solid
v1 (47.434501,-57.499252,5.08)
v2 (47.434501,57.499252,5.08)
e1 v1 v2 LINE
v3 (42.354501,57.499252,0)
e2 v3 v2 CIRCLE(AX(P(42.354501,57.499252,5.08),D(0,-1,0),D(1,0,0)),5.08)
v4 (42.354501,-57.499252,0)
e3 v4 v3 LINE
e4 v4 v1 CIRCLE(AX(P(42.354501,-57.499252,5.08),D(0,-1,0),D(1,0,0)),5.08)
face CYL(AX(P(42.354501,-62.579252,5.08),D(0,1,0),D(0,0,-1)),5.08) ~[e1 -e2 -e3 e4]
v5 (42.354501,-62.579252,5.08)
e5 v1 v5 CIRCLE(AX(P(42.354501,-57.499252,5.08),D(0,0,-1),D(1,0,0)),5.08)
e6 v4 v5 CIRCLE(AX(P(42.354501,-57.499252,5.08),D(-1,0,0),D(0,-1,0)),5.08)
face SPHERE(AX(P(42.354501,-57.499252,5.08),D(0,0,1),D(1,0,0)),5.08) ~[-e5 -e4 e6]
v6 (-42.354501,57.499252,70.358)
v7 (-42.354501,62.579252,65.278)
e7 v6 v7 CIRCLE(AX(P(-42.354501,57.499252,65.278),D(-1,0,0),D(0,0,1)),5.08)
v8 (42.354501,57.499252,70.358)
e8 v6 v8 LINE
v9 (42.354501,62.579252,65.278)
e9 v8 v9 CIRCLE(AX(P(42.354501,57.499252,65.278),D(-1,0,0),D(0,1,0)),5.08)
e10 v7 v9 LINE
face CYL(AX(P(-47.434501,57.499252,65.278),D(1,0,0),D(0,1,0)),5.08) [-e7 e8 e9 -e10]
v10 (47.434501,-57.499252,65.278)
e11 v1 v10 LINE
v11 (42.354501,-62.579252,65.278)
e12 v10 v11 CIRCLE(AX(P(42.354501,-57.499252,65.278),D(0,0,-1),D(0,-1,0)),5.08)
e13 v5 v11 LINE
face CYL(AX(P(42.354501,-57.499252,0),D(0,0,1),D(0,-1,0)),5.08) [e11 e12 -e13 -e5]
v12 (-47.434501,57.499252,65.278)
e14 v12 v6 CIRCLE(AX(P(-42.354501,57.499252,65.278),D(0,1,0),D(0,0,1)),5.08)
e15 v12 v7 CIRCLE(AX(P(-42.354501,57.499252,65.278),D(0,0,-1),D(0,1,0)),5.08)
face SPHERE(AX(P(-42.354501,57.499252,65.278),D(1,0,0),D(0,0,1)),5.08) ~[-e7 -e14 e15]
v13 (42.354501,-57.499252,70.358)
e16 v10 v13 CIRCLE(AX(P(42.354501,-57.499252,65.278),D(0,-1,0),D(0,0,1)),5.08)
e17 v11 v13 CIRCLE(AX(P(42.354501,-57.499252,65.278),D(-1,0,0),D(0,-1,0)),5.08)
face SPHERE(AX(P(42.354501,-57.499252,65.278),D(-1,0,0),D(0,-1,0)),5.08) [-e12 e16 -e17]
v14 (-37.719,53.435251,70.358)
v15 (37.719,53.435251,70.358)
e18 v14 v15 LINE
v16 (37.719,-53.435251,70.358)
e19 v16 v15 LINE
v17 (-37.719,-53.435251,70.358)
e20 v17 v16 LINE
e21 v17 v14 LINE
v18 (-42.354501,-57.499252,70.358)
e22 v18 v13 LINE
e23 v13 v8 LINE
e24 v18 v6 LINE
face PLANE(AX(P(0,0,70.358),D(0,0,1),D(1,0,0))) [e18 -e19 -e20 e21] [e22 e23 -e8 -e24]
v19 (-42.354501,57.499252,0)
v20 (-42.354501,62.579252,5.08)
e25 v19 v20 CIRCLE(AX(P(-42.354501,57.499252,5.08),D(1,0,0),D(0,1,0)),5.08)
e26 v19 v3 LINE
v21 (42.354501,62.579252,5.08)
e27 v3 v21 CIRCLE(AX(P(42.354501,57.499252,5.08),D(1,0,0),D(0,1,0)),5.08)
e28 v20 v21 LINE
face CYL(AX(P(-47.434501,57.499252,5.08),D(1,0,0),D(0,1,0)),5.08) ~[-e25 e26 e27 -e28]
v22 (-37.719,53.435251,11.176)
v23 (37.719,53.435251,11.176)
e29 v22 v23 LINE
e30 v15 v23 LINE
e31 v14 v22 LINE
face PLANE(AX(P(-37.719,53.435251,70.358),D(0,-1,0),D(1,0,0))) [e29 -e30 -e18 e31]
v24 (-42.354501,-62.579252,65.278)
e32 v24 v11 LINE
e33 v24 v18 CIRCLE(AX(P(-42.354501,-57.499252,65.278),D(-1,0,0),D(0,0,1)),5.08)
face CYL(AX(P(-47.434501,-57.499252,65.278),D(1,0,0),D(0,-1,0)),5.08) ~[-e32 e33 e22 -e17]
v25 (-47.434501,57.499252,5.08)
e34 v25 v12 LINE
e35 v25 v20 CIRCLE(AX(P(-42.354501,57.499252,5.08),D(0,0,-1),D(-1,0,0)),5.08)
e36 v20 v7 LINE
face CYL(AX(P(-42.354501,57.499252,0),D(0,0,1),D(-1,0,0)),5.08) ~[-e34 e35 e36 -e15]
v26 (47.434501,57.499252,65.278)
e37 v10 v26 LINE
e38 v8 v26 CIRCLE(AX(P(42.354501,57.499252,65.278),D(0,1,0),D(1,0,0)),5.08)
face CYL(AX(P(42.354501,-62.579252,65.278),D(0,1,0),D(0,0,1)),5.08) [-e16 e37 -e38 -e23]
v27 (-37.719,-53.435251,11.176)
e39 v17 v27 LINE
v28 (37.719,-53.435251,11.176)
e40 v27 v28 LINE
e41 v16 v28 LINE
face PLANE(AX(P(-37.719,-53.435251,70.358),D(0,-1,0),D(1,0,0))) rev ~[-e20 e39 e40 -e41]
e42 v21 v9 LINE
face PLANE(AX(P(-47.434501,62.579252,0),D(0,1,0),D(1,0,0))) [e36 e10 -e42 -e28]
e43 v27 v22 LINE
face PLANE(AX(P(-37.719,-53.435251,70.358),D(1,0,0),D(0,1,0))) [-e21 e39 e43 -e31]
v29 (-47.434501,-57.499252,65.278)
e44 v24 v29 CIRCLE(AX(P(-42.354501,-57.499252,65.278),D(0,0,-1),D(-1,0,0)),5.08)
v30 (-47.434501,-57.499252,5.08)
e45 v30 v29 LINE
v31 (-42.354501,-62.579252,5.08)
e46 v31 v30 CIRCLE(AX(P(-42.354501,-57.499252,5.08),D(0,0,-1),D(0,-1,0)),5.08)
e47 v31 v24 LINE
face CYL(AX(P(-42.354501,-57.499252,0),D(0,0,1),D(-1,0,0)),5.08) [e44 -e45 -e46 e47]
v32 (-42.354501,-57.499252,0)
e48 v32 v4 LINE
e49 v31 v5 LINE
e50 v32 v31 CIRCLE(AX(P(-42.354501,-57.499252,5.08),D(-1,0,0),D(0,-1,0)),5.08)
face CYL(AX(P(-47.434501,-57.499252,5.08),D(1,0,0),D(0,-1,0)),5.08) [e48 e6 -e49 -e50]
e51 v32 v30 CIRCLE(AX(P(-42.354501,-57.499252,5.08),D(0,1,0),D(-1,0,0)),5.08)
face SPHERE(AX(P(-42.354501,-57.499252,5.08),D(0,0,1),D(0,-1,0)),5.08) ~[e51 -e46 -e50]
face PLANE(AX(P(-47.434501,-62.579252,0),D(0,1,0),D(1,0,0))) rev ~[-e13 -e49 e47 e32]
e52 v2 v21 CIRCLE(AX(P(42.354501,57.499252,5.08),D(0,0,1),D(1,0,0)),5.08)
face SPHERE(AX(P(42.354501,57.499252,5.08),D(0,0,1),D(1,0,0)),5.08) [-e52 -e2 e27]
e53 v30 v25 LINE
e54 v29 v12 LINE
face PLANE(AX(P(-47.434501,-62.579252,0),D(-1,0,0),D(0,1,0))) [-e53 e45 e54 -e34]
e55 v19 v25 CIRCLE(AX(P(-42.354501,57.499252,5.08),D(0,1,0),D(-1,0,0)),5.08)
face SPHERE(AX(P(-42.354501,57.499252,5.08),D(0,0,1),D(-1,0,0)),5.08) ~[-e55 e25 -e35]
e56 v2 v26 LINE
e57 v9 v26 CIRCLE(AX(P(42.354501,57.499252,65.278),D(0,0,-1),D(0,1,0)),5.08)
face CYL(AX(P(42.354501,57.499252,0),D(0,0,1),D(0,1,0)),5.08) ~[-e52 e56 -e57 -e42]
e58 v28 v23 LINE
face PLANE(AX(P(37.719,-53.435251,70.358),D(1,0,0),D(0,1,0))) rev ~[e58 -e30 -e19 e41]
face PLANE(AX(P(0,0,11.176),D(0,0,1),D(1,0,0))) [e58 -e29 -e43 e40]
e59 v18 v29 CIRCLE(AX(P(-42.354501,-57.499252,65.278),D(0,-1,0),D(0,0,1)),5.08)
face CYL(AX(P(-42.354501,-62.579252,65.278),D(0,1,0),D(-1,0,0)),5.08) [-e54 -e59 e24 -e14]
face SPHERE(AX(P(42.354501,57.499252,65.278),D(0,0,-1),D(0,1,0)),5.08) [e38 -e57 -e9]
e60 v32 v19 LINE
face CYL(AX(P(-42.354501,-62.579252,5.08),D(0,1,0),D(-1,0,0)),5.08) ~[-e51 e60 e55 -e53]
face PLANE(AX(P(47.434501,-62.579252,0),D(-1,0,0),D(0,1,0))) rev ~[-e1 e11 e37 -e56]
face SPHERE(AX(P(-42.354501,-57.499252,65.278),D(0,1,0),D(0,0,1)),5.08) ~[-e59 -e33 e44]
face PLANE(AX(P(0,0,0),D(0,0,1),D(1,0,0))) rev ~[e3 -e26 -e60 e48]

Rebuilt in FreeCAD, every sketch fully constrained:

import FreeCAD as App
import Part
import Sketcher
Q = App.Units.Quantity


def edges_at(feature, points):
    """Names of the edges that pass closest to the given points."""
    edges = feature.Shape.Edges
    near = lambda p: min(range(len(edges)), key=lambda i: edges[i].distToShape(Part.Vertex(*p))[0])
    return sorted({f"Edge{near(p) + 1}" for p in points})


def add_polygon(sketch, points):
    """Adds a closed chain of lines whose ends are joined by coincident constraints."""
    first, n = sketch.GeometryCount, len(points)
    for a, b in zip(points, points[1:] + points[:1]):
        sketch.addGeometry(Part.LineSegment(App.Vector(*a, 0), App.Vector(*b, 0)), False)
    for i in range(n):
        sketch.addConstraint(Sketcher.Constraint("Coincident", first + i, 2, first + (i + 1) % n, 1))

doc = App.newDocument("Part")
body = doc.addObject("PartDesign::Body", "Body")

# Sketch on XY plane
sketch1 = body.newObject("Sketcher::SketchObject", "Sketch")
sketch1.AttachmentSupport = (doc.getObject("XY_Plane"), [""])
sketch1.MapMode = "FlatFace"
add_polygon(sketch1, [(-47, 63), (-47, -63), (47, -63), (47, 63)])  # lines 0-3
sketch1.addConstraint(Sketcher.Constraint("Vertical", 0))
sketch1.addConstraint(Sketcher.Constraint("Horizontal", 1))
sketch1.addConstraint(Sketcher.Constraint("Vertical", 2))
sketch1.addConstraint(Sketcher.Constraint("Horizontal", 3))
sketch1.addConstraint(Sketcher.Constraint("Symmetric", 0, 2, 2, 2, -1, 1))
sketch1.addConstraint(Sketcher.Constraint("DistanceX", 1, 1, 1, 2, Q("3.7350001 in")))
sketch1.addConstraint(Sketcher.Constraint("DistanceY", 0, 2, 0, 1, Q("4.9275002 in")))
pad1 = body.newObject("PartDesign::Pad", "Pad")
pad1.Profile = sketch1
pad1.Length = Q("2.77 in")

# Sketch on XY plane
sketch2 = body.newObject("Sketcher::SketchObject", "Sketch001")
sketch2.AttachmentSupport = (doc.getObject("XY_Plane"), [""])
sketch2.MapMode = "FlatFace"
sketch2.AttachmentOffset = App.Placement(App.Vector(0, 0, 2.77 * 25.4), App.Rotation())
add_polygon(sketch2, [(-38, 53), (-38, -53), (38, -53), (38, 53)])  # lines 0-3
sketch2.addConstraint(Sketcher.Constraint("Vertical", 0))
sketch2.addConstraint(Sketcher.Constraint("Horizontal", 1))
sketch2.addConstraint(Sketcher.Constraint("Vertical", 2))
sketch2.addConstraint(Sketcher.Constraint("Horizontal", 3))
sketch2.addConstraint(Sketcher.Constraint("Symmetric", 0, 2, 2, 2, -1, 1))
sketch2.addConstraint(Sketcher.Constraint("DistanceX", 1, 1, 1, 2, Q("2.97 in")))
sketch2.addConstraint(Sketcher.Constraint("DistanceY", 0, 2, 0, 1, Q("4.2075001 in")))
pocket1 = body.newObject("PartDesign::Pocket", "Pocket")
pocket1.Profile = sketch2
pocket1.Length = Q("2.33 in")
doc.recompute()

fillet = body.newObject("PartDesign::Fillet", "Fillet")
fillet.Base = (pocket1, edges_at(pocket1, [
    (47.435, 62.579, 35.179),
    (0, 62.579, 70.358),
    (-47.435, 0, 70.358),
    (0, -62.579, 70.358),
    (47.435, -62.579, 35.179),
    (47.435, 0, 0),
    (47.435, 0, 70.358),
    (-47.435, -62.579, 35.179),
    (0, -62.579, 0),
    (-47.435, 62.579, 35.179),
    (-47.435, 0, 0),
    (0, 62.579, 0),
]))
fillet.Radius = Q("0.2 in")

doc.recompute()
